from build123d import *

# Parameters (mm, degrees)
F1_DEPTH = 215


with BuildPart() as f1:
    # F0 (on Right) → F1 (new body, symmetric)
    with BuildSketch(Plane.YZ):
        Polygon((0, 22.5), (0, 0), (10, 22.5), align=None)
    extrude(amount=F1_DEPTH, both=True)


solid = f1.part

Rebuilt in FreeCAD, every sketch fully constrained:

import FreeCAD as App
import Part
import Sketcher
from FreeCAD import Vector
Q = App.Units.Quantity

doc = App.newDocument("Part")
body = doc.addObject("PartDesign::Body", "Body")

# Sketch on YZ plane
sketch1 = body.newObject("Sketcher::SketchObject", "Sketch")
sketch1.AttachmentSupport = (doc.getObject("YZ_Plane"), [""])
sketch1.MapMode = "FlatFace"
sketch1.addGeometry([
    Part.LineSegment(Vector(0, 22, 0), Vector(0, 0, 0)),
    Part.LineSegment(Vector(0, 0, 0), Vector(10, 22, 0)),
    Part.LineSegment(Vector(10, 22, 0), Vector(0, 22, 0)),
], False)
sketch1.addConstraint([
    Sketcher.Constraint("Coincident", 0, 2, 1, 1),
    Sketcher.Constraint("Coincident", 1, 2, 2, 1),
    Sketcher.Constraint("Coincident", 2, 2, 0, 1),
    Sketcher.Constraint("Vertical", 0),
    Sketcher.Constraint("Horizontal", 2),
    Sketcher.Constraint("Coincident", 0, 2, -1, 1),
    Sketcher.Constraint("DistanceX", 2, 2, 2, 1, Q("10 mm")),
    Sketcher.Constraint("DistanceY", 0, 2, 0, 1, Q("22.5 mm")),
])
pad1 = body.newObject("PartDesign::Pad", "Pad")
pad1.Profile = sketch1
pad1.Length = 430
pad1.Midplane = True

doc.recompute()
